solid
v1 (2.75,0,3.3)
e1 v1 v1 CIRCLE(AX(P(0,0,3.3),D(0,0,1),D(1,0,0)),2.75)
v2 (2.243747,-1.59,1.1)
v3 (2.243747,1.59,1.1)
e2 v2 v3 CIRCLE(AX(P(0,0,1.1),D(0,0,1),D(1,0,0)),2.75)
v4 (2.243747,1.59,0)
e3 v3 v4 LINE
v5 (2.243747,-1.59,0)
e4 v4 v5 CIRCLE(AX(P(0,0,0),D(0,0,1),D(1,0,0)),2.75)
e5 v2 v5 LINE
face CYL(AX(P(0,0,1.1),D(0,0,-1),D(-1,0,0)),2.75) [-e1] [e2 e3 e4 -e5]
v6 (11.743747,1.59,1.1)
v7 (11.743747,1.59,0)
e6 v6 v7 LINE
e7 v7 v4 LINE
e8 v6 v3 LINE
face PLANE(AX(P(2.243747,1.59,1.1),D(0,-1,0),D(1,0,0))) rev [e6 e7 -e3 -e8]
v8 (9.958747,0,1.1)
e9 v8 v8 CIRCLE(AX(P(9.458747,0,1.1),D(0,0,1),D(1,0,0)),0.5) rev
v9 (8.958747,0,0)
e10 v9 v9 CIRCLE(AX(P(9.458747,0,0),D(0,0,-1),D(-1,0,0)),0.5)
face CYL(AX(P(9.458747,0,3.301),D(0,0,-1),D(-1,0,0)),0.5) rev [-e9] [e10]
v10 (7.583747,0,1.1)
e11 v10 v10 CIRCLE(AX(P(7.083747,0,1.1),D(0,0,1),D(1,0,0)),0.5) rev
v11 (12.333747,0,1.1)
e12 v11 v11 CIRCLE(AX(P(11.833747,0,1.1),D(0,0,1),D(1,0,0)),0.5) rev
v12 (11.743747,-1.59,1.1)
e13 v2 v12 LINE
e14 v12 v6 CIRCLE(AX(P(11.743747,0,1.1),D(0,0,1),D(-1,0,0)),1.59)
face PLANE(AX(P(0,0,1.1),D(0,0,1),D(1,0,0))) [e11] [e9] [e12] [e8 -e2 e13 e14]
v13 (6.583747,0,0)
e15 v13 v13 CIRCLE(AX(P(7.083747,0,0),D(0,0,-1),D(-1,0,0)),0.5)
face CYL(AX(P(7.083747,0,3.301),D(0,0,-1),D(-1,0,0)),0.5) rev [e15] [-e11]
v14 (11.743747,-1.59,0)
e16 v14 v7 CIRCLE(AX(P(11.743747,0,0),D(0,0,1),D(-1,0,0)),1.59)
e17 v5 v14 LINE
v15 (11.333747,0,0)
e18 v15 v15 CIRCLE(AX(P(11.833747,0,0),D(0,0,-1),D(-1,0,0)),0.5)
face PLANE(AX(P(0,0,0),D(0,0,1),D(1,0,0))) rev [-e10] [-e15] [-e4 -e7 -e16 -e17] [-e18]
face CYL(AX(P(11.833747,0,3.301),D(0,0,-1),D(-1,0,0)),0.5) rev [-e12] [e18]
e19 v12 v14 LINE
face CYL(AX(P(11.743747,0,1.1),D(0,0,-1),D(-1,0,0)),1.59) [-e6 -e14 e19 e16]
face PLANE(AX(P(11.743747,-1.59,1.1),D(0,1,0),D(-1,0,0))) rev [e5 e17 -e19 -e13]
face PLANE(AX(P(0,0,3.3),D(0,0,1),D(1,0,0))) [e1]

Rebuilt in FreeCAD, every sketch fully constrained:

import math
import FreeCAD as App
import Part
import Sketcher

V = App.Vector
Q = App.Units.Quantity

doc = App.newDocument("Part")
body = doc.addObject("PartDesign::Body", "Body")

sketch1 = doc.addObject("Sketcher::SketchObject", "Sketch")
body.addObject(sketch1)
sketch1.AttachmentSupport = (doc.XY_Plane, [""])
sketch1.MapMode = "FlatFace"
sketch1.addGeometry([
    Part.LineSegment(V(11.7, 1.6, 0), V(2.2, 1.6, 0)),
    Part.ArcOfCircle(Part.Circle(V(0, 0, 0), V(0, 0, 1), 2.8), math.radians(35), math.radians(325)),
    Part.LineSegment(V(2.2, -1.6, 0), V(11.7, -1.6, 0)),
    Part.ArcOfCircle(Part.Circle(V(11.7, 0, 0), V(0, 0, 1), 1.6), math.radians(-90), math.radians(90)),
], False)
sketch1.addConstraint([
    Sketcher.Constraint("Coincident", 0, 2, 1, 1),
    Sketcher.Constraint("Coincident", 1, 2, 2, 1),
    Sketcher.Constraint("Tangent", 2, 2, 3, 1),
    Sketcher.Constraint("Tangent", 3, 2, 0, 1),
    Sketcher.Constraint("Horizontal", 0),
    Sketcher.Constraint("Horizontal", 2),
    Sketcher.Constraint("Coincident", 1, 3, -1, 1),
    Sketcher.Constraint("PointOnObject", 3, 3, -1),
    Sketcher.Constraint("Radius", 1, Q("2.75 mm")),
    Sketcher.Constraint("Radius", 3, Q("1.59 mm")),
    Sketcher.Constraint("DistanceX", 0, 2, 0, 1, Q("9.5 mm")),
])
pad1 = doc.addObject("PartDesign::Pad", "Pad")
body.addObject(pad1)
pad1.Profile = sketch1
pad1.Length = 1.1

sketch2 = doc.addObject("Sketcher::SketchObject", "Sketch001")
body.addObject(sketch2)
sketch2.AttachmentSupport = (doc.XY_Plane, [""])
sketch2.MapMode = "FlatFace"
sketch2.AttachmentOffset = App.Placement(V(0, 0, 1.1), App.Rotation())
sketch2.addGeometry(Part.Circle(V(0, 0, 0), V(0, 0, 1), 2.8), False)
sketch2.addConstraint([
    Sketcher.Constraint("Coincident", 0, 3, -1, 1),
    Sketcher.Constraint("Diameter", 0, Q("5.5 mm")),
])
pad2 = doc.addObject("PartDesign::Pad", "Pad001")
body.addObject(pad2)
pad2.Profile = sketch2
pad2.Length = 2.2

sketch3 = doc.addObject("Sketcher::SketchObject", "Sketch002")
body.addObject(sketch3)
sketch3.AttachmentSupport = (doc.XY_Plane, [""])
sketch3.MapMode = "FlatFace"
sketch3.addGeometry(Part.Circle(V(11.8, 0, 0), V(0, 0, 1), 0.5), False)
sketch3.addConstraint([
    Sketcher.Constraint("PointOnObject", 0, 3, -1),
    Sketcher.Constraint("Diameter", 0, Q("1 mm")),
    Sketcher.Constraint("DistanceX", -1, 1, 0, 3, Q("11.833747 mm")),
])
pocket1 = doc.addObject("PartDesign::Pocket", "Pocket")
body.addObject(pocket1)
pocket1.Profile = sketch3
pocket1.Type = "UpToFirst"
pocket1.Reversed = True

sketch4 = doc.addObject("Sketcher::SketchObject", "Sketch003")
body.addObject(sketch4)
sketch4.AttachmentSupport = (doc.XY_Plane, [""])
sketch4.MapMode = "FlatFace"
sketch4.addGeometry(Part.Circle(V(9.5, 0, 0), V(0, 0, 1), 0.5), False)
sketch4.addConstraint([
    Sketcher.Constraint("PointOnObject", 0, 3, -1),
    Sketcher.Constraint("Diameter", 0, Q("1 mm")),
    Sketcher.Constraint("DistanceX", -1, 1, 0, 3, Q("9.458747 mm")),
])
pocket2 = doc.addObject("PartDesign::Pocket", "Pocket001")
body.addObject(pocket2)
pocket2.Profile = sketch4
pocket2.Type = "UpToFirst"
pocket2.Reversed = True

sketch5 = doc.addObject("Sketcher::SketchObject", "Sketch004")
body.addObject(sketch5)
sketch5.AttachmentSupport = (doc.XY_Plane, [""])
sketch5.MapMode = "FlatFace"
sketch5.addGeometry(Part.Circle(V(7.1, 0, 0), V(0, 0, 1), 0.5), False)
sketch5.addConstraint([
    Sketcher.Constraint("PointOnObject", 0, 3, -1),
    Sketcher.Constraint("Diameter", 0, Q("1 mm")),
    Sketcher.Constraint("DistanceX", -1, 1, 0, 3, Q("7.083747 mm")),
])
pocket3 = doc.addObject("PartDesign::Pocket", "Pocket002")
body.addObject(pocket3)
pocket3.Profile = sketch5
pocket3.Type = "UpToFirst"
pocket3.Reversed = True

doc.recompute()
